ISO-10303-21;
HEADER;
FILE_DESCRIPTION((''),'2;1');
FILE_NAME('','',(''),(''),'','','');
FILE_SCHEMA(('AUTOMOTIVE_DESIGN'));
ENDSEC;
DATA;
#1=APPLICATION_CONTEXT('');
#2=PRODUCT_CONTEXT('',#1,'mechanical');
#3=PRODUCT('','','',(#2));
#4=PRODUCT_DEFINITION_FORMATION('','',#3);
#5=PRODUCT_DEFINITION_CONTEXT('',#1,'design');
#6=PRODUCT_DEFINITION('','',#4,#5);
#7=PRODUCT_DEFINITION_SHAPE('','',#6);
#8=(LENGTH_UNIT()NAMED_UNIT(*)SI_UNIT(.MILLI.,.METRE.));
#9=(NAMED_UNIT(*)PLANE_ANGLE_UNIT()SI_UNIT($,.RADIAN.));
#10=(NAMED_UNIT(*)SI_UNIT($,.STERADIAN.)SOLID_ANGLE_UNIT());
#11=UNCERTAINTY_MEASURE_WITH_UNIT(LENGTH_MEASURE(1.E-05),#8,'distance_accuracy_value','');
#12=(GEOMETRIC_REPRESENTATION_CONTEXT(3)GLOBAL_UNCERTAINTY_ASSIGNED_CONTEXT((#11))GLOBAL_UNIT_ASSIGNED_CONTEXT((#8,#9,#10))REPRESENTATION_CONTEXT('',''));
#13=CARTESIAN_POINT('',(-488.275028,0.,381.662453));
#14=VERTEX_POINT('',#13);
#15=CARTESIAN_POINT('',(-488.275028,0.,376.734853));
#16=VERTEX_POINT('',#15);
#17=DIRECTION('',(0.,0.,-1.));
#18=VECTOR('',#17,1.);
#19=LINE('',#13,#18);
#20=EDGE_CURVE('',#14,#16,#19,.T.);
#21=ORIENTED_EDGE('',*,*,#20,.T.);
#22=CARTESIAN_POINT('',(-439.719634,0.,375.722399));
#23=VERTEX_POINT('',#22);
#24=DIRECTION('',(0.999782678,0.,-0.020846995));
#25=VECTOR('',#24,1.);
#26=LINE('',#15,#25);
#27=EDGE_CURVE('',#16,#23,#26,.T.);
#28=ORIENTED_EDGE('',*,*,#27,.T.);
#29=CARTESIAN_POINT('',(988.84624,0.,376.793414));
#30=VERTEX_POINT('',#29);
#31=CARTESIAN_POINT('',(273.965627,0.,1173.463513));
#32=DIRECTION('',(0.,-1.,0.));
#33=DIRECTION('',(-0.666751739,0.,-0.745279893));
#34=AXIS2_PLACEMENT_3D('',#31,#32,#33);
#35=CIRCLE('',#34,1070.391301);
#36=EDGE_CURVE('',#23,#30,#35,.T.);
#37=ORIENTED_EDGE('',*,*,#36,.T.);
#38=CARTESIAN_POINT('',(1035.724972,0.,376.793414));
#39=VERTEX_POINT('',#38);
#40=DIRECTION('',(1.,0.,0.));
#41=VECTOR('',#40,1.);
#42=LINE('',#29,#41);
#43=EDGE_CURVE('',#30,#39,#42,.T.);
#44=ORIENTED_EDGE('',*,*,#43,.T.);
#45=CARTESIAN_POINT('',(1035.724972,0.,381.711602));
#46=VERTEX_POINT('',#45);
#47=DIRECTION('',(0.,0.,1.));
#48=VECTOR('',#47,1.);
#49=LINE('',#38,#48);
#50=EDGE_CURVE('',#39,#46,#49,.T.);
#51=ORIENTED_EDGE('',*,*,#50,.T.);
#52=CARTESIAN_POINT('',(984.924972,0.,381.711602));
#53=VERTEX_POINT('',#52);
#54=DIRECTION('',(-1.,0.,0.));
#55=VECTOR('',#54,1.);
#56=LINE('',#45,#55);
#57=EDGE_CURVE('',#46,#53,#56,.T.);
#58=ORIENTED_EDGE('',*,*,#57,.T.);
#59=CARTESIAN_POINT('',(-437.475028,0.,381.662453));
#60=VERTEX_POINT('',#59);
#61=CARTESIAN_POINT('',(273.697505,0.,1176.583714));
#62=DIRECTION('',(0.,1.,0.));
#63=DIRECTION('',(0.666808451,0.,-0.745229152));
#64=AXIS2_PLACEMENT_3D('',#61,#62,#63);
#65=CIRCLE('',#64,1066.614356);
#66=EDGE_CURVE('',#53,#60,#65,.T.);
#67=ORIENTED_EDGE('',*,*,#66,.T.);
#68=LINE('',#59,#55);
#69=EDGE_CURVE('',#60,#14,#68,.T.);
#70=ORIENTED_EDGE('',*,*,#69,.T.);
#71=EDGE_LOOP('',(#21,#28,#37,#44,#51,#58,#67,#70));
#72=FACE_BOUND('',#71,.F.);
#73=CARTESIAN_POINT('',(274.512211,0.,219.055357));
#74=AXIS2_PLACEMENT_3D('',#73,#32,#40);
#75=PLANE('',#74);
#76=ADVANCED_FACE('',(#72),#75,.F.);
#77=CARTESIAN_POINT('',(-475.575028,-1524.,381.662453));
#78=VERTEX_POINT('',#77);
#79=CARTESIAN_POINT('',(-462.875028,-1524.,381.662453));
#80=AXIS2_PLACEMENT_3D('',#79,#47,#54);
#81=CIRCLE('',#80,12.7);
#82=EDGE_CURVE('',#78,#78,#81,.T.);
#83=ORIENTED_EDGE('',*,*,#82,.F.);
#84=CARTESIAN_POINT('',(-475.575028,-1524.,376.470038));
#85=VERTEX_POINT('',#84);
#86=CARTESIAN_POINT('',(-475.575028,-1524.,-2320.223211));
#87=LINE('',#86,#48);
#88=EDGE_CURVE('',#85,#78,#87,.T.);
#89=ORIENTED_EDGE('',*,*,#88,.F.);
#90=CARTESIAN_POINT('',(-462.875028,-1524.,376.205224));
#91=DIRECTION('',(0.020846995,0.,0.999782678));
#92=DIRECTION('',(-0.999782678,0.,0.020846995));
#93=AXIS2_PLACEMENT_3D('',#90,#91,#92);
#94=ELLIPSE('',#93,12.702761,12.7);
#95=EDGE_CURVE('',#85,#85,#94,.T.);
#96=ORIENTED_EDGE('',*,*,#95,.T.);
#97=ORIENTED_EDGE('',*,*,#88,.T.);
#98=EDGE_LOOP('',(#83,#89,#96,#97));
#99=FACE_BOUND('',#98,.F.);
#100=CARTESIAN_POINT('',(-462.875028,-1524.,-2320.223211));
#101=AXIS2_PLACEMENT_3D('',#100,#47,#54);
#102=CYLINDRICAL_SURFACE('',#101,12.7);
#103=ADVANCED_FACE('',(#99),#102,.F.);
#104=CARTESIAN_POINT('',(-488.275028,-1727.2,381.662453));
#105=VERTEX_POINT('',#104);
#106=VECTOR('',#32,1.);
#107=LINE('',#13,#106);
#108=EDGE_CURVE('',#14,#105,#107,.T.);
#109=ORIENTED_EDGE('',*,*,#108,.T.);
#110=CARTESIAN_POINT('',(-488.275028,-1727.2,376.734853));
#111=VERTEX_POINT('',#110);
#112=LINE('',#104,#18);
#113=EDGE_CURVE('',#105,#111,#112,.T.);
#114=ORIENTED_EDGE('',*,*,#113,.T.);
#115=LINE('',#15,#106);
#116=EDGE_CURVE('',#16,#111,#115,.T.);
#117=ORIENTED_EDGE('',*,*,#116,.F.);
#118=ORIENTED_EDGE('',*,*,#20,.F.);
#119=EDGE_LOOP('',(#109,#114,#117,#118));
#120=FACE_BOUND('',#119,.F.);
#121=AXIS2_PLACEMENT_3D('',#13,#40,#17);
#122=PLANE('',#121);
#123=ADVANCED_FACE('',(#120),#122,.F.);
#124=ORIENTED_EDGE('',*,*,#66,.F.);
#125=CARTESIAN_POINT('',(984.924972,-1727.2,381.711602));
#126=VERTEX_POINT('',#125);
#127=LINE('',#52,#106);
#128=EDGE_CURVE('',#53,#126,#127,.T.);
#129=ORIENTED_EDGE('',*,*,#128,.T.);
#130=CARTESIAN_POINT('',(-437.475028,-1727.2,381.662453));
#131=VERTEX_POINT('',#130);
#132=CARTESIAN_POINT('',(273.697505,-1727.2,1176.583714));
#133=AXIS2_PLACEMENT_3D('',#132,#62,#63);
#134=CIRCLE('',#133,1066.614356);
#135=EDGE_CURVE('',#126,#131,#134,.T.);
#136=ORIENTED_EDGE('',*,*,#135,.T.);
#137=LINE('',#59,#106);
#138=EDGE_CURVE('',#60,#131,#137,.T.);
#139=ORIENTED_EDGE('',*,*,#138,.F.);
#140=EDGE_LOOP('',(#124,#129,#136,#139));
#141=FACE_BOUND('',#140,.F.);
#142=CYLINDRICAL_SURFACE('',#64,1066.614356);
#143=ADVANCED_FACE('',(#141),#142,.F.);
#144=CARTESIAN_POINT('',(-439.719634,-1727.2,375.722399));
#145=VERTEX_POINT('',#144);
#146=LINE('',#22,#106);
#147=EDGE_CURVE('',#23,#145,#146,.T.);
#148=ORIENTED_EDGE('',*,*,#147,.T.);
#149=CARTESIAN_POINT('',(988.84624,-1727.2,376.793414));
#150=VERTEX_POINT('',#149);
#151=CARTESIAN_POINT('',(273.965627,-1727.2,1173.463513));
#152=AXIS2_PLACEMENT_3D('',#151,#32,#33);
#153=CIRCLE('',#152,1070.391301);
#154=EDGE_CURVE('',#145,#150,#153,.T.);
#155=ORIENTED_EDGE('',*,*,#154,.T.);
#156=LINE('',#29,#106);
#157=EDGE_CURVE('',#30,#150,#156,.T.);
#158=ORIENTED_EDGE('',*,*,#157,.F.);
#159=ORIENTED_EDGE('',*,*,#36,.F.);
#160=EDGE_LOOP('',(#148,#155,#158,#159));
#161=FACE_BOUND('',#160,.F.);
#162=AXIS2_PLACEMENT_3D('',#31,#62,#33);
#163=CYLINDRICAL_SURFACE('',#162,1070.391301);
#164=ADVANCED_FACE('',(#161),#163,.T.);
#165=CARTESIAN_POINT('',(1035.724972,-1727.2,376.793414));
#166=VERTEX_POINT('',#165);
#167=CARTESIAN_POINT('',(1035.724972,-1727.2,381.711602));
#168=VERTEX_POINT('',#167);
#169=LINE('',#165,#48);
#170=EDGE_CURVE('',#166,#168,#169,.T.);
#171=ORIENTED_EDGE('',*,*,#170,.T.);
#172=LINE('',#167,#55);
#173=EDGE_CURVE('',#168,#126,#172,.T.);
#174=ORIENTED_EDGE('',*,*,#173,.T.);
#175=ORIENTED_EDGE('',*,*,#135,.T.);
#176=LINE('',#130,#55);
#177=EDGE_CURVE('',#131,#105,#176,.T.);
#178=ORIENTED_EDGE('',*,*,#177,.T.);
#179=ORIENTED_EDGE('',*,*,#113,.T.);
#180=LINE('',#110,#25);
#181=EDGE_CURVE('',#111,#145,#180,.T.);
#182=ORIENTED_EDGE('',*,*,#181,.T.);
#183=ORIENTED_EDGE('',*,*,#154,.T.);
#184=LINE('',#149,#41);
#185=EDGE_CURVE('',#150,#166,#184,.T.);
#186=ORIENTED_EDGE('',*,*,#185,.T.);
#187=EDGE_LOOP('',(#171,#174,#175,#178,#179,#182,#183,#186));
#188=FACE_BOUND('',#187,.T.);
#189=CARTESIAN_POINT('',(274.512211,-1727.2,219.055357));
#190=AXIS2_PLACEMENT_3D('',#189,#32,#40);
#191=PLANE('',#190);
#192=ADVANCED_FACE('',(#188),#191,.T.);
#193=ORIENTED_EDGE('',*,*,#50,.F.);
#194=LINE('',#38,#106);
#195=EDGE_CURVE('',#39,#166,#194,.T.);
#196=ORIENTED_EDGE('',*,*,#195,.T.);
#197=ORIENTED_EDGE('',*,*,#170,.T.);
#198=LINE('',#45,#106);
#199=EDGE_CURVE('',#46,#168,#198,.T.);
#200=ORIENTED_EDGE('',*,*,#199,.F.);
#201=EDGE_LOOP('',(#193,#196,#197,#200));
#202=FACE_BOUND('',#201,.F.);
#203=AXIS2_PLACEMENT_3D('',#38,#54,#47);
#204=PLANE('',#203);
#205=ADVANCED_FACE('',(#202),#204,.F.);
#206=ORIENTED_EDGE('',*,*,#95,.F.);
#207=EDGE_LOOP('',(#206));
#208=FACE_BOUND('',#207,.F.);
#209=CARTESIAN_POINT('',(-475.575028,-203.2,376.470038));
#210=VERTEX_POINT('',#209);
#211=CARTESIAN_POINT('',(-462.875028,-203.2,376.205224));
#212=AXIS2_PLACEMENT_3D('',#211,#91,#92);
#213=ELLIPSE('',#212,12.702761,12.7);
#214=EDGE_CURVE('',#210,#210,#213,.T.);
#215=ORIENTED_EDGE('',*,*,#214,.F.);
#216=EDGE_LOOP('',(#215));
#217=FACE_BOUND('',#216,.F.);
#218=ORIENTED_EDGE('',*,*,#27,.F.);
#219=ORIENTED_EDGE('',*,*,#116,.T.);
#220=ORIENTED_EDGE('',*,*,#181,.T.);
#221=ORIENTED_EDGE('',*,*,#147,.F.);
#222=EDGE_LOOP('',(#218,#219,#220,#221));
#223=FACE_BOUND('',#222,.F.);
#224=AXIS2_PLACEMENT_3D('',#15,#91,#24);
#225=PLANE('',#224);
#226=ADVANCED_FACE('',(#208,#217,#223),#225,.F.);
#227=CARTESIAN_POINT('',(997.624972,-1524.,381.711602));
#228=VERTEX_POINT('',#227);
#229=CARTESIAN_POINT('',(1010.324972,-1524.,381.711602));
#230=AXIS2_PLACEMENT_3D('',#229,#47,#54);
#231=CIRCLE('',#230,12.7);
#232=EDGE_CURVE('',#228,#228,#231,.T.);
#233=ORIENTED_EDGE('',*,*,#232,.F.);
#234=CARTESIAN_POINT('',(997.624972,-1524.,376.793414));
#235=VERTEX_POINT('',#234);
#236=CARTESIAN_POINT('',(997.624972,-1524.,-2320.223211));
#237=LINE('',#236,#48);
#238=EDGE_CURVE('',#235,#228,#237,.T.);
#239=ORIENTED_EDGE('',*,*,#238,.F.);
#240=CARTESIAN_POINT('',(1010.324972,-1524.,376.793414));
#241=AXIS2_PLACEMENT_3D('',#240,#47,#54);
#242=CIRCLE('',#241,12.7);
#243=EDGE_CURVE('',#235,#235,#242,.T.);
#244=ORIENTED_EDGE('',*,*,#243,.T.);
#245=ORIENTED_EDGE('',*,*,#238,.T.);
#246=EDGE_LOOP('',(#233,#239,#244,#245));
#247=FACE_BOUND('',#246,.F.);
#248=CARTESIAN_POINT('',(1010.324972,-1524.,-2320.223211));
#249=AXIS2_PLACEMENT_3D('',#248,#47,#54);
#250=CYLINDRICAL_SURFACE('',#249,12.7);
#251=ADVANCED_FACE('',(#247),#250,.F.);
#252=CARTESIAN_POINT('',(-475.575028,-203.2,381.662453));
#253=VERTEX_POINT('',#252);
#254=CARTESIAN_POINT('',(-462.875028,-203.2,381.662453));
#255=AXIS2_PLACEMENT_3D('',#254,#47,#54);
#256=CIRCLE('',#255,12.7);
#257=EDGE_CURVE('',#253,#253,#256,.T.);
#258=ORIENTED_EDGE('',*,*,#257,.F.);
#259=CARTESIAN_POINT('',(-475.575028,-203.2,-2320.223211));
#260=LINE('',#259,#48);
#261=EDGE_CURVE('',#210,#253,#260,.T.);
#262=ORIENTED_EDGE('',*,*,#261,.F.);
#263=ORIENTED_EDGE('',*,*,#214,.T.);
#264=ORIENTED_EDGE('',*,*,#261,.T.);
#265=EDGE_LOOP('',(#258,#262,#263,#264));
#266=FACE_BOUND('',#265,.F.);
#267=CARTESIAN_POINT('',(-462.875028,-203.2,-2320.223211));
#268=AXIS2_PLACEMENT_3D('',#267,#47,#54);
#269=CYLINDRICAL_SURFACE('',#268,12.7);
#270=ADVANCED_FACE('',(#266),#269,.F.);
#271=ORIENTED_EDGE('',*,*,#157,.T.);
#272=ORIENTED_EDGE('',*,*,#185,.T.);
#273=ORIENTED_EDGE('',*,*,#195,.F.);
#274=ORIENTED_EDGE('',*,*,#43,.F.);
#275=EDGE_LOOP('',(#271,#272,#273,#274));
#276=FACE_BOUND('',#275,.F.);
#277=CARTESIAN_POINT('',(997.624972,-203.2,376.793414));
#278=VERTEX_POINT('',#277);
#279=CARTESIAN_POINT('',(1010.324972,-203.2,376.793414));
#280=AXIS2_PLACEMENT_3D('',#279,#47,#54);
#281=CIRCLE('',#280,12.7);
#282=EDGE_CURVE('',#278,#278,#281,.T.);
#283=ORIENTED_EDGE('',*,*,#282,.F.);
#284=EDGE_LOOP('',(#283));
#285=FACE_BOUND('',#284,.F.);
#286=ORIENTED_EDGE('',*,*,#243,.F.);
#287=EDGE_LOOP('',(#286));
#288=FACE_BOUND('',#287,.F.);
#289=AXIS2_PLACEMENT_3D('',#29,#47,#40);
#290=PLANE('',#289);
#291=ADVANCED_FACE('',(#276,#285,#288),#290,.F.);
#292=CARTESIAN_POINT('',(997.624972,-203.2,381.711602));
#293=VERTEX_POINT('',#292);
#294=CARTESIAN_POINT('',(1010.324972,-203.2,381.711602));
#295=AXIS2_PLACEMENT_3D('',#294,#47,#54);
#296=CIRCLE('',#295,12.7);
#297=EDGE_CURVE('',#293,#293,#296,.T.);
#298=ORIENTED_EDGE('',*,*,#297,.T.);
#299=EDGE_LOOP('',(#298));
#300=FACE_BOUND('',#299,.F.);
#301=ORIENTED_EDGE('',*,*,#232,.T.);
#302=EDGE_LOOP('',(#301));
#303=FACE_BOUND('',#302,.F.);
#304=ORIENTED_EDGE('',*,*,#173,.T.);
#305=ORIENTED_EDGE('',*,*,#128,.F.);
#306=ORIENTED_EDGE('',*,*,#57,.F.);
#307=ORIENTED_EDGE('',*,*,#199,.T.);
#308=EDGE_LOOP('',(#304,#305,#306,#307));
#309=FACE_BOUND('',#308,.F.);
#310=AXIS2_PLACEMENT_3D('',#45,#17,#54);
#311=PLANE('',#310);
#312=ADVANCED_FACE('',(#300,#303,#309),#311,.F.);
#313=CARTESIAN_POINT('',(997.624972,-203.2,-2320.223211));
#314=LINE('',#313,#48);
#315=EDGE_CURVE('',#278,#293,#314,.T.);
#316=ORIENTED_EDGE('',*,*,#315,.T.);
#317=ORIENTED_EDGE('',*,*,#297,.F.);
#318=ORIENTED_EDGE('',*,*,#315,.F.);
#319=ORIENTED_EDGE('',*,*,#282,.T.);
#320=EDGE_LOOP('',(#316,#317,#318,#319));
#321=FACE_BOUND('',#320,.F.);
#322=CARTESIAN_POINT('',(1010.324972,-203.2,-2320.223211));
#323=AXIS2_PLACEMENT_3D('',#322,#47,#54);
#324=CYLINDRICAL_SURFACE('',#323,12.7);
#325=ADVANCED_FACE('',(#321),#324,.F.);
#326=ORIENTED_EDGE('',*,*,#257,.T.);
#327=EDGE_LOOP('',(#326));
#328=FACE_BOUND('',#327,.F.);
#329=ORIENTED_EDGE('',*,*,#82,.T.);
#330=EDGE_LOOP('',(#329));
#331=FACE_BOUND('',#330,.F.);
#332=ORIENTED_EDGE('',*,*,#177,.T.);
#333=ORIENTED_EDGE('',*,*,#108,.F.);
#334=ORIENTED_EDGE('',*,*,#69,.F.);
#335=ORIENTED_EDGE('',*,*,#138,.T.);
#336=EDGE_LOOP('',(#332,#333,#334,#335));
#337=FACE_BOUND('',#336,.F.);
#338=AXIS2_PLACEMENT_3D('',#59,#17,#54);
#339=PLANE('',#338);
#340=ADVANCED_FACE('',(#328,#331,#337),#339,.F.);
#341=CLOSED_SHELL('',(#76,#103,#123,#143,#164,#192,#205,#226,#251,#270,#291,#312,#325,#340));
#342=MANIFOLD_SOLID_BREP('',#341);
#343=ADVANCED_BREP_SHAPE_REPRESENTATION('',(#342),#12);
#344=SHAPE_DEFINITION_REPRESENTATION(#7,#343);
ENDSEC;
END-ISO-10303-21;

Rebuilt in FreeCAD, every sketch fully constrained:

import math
import FreeCAD as App
import Part
import Sketcher
from FreeCAD import Vector
Q = App.Units.Quantity

doc = App.newDocument("Part")
body = doc.addObject("PartDesign::Body", "Body")

sketch1 = body.newObject("Sketcher::SketchObject", "Sketch")
sketch1.AttachmentSupport = (doc.getObject("XZ_Plane"), [""])
sketch1.MapMode = "FlatFace"
sketch1.addGeometry(Part.ArcOfCircle(Part.Circle(Vector(273.7, 1176.6, 0), Vector(0, 0, 1), 1066.6), math.radians(-132), math.radians(-48)), False)
sketch1.addGeometry(Part.LineSegment(Vector(-437.5, 381.7, 0), Vector(-488.3, 381.7, 0)), False)
sketch1.addGeometry(Part.LineSegment(Vector(-488.3, 381.7, 0), Vector(-488.3, 376.7, 0)), False)
sketch1.addGeometry(Part.LineSegment(Vector(-488.3, 376.7, 0), Vector(-439.7, 375.7, 0)), False)
sketch1.addGeometry(Part.ArcOfCircle(Part.Circle(Vector(274, 1173.5, 0), Vector(0, 0, 1), 1070.4), math.radians(-132), math.radians(-48)), False)
sketch1.addGeometry(Part.LineSegment(Vector(988.8, 376.8, 0), Vector(1035.7, 376.8, 0)), False)
sketch1.addGeometry(Part.LineSegment(Vector(1035.7, 376.8, 0), Vector(1035.7, 381.7, 0)), False)
sketch1.addGeometry(Part.LineSegment(Vector(1035.7, 381.7, 0), Vector(984.9, 381.7, 0)), False)
sketch1.addConstraint(Sketcher.Constraint("Coincident", 0, 1, 1, 1))
sketch1.addConstraint(Sketcher.Constraint("Coincident", 1, 2, 2, 1))
sketch1.addConstraint(Sketcher.Constraint("Coincident", 2, 2, 3, 1))
sketch1.addConstraint(Sketcher.Constraint("Coincident", 3, 2, 4, 1))
sketch1.addConstraint(Sketcher.Constraint("Coincident", 4, 2, 5, 1))
sketch1.addConstraint(Sketcher.Constraint("Coincident", 5, 2, 6, 1))
sketch1.addConstraint(Sketcher.Constraint("Coincident", 6, 2, 7, 1))
sketch1.addConstraint(Sketcher.Constraint("Coincident", 7, 2, 0, 2))
sketch1.addConstraint(Sketcher.Constraint("Horizontal", 1))
sketch1.addConstraint(Sketcher.Constraint("Vertical", 2))
sketch1.addConstraint(Sketcher.Constraint("Horizontal", 5))
sketch1.addConstraint(Sketcher.Constraint("Vertical", 6))
sketch1.addConstraint(Sketcher.Constraint("Horizontal", 7))
sketch1.addConstraint(Sketcher.Constraint("Equal", 1, 7))
sketch1.addConstraint(Sketcher.Constraint("DistanceX", 1, 2, 1, 1, Q("2 in")))
sketch1.addConstraint(Sketcher.Constraint("DistanceY", 2, 2, 2, 1, Q("0.194 in")))
sketch1.addConstraint(Sketcher.Constraint("Radius", 4, 1070.391301))
sketch1.addConstraint(Sketcher.Constraint("Radius", 0, 1066.614356))
sketch1.addConstraint(Sketcher.Constraint("DistanceX", 5, 1, 5, 2, 46.878732))
sketch1.addConstraint(Sketcher.Constraint("DistanceY", -1, 1, 3, 2, 375.722399))
sketch1.addConstraint(Sketcher.Constraint("DistanceY", 4, 3, 0, 3, 3.120202))
sketch1.addConstraint(Sketcher.Constraint("DistanceY", 5, 2, 4, 3, 796.670098))
sketch1.addConstraint(Sketcher.Constraint("Distance", 3, 48.565948))
sketch1.addConstraint(Sketcher.Constraint("DistanceY", 6, 1, 6, 2, 4.918188))
sketch1.addConstraint(Sketcher.Constraint("DistanceY", 1, 2, 4, 3, 791.80106))
sketch1.addConstraint(Sketcher.Constraint("DistanceX", -1, 1, 0, 3, 273.697505))
pad1 = body.newObject("PartDesign::Pad", "Pad")
pad1.Profile = sketch1
pad1.Length = Q("68 in")

sketch2 = body.newObject("Sketcher::SketchObject", "Sketch001")
sketch2.AttachmentSupport = (doc.getObject("XY_Plane"), [""])
sketch2.MapMode = "FlatFace"
sketch2.addGeometry(Part.Circle(Vector(1010, -203, 0), Vector(0, 0, 1), 13), False)
sketch2.addGeometry(Part.Circle(Vector(1010, -1524, 0), Vector(0, 0, 1), 13), False)
sketch2.addGeometry(Part.Circle(Vector(-463, -1524, 0), Vector(0, 0, 1), 13), False)
sketch2.addGeometry(Part.Circle(Vector(-463, -203, 0), Vector(0, 0, 1), 13), False)
sketch2.addConstraint(Sketcher.Constraint("Equal", 0, 1))
sketch2.addConstraint(Sketcher.Constraint("Equal", 1, 2))
sketch2.addConstraint(Sketcher.Constraint("Equal", 2, 3))
sketch2.addConstraint(Sketcher.Constraint("Horizontal", 1, 3, 2, 3))
sketch2.addConstraint(Sketcher.Constraint("Horizontal", 0, 3, 3, 3))
sketch2.addConstraint(Sketcher.Constraint("Vertical", 0, 3, 1, 3))
sketch2.addConstraint(Sketcher.Constraint("Vertical", 2, 3, 3, 3))
sketch2.addConstraint(Sketcher.Constraint("Diameter", 0, Q("1 in")))
sketch2.addConstraint(Sketcher.Constraint("DistanceY", 0, 3, -1, 1, Q("8 in")))
sketch2.addConstraint(Sketcher.Constraint("DistanceY", 1, 3, -1, 1, Q("60 in")))
sketch2.addConstraint(Sketcher.Constraint("DistanceX", 2, 3, 1, 3, Q("58 in")))
sketch2.addConstraint(Sketcher.Constraint("DistanceX", -1, 1, 0, 3, 1010.324972))
doc.recompute()
hole = body.newObject("PartDesign::Hole", "Hole")
hole.Profile = sketch2
hole.ThreadType = "None"
hole.Diameter = Q("1 in")
hole.DepthType = "ThroughAll"
hole.Reversed = True

doc.recompute()
